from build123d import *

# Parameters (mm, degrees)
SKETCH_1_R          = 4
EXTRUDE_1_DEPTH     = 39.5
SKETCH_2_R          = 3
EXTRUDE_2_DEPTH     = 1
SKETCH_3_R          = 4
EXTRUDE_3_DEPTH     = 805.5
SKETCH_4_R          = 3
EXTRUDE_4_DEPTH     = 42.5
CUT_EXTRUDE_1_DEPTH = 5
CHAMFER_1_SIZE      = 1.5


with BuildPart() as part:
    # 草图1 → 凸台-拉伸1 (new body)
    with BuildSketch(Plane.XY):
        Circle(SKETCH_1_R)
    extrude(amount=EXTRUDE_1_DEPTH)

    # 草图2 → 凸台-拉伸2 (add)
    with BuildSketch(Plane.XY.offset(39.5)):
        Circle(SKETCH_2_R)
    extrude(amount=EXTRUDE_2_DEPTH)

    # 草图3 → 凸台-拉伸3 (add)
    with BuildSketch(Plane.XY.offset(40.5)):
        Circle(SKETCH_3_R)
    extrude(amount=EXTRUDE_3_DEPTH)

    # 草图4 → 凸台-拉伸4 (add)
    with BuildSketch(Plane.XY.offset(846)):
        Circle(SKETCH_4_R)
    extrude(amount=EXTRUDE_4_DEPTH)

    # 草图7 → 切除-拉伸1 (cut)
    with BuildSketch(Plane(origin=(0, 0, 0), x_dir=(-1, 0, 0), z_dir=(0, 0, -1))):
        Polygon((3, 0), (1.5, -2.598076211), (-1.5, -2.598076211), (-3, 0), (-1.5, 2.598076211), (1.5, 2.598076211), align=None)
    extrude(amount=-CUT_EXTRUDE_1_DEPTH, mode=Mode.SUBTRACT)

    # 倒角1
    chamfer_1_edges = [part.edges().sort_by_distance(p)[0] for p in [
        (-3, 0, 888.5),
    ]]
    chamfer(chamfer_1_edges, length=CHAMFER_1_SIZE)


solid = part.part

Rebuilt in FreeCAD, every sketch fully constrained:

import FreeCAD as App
import Part
import Sketcher

V = App.Vector
Q = App.Units.Quantity


def edges_at(feature, points):
    """Names of the edges that pass closest to the given points."""
    edges = feature.Shape.Edges
    near = lambda p: min(range(len(edges)), key=lambda i: edges[i].distToShape(Part.Vertex(*p))[0])
    return sorted({f"Edge{near(p) + 1}" for p in points})

doc = App.newDocument("Part")
params = doc.addObject("Spreadsheet::Sheet", "Params")
for row, (alias, value) in enumerate([
    ("sketch1_diameter", "8 mm"),
    ("pad1_length", "39.5 mm"),
    ("sketch2_diameter", "6 mm"),
    ("pad2_length", "1 mm"),
    ("sketch3_diameter", "8 mm"),
    ("pad3_length", "805.5 mm"),
    ("sketch4_diameter", "6 mm"),
    ("pad4_length", "42.5 mm"),
    ("sketch5_width", "3 mm"),
    ("sketch5_length", "3 mm"),
    ("pocket1_length", "5 mm"),
    ("chamfer_size", "1.5 mm"),
], start=1):
    params.set(f"A{row}", alias)
    params.set(f"B{row}", "=" + value)
    params.setAlias(f"B{row}", alias)

body = doc.addObject("PartDesign::Body", "Body")

sketch1 = doc.addObject("Sketcher::SketchObject", "Sketch")
body.addObject(sketch1)
sketch1.AttachmentSupport = (doc.XY_Plane, [""])
sketch1.MapMode = "FlatFace"
sketch1.addGeometry(Part.Circle(V(0, 0, 0), V(0, 0, 1), 4), False)
sketch1.addConstraint([
    Sketcher.Constraint("Coincident", 0, 3, -1, 1),
    Sketcher.Constraint("Diameter", 0, 8.0),
])
sketch1.setExpression("Constraints[1]", "Params.sketch1_diameter")
pad1 = doc.addObject("PartDesign::Pad", "Pad")
body.addObject(pad1)
pad1.Profile = sketch1
pad1.setExpression("Length", "Params.pad1_length")

sketch2 = doc.addObject("Sketcher::SketchObject", "Sketch001")
body.addObject(sketch2)
sketch2.AttachmentSupport = (doc.XY_Plane, [""])
sketch2.MapMode = "FlatFace"
sketch2.AttachmentOffset = App.Placement(V(0, 0, 39.5), App.Rotation())
sketch2.addGeometry(Part.Circle(V(0, 0, 0), V(0, 0, 1), 3), False)
sketch2.addConstraint([
    Sketcher.Constraint("Coincident", 0, 3, -1, 1),
    Sketcher.Constraint("Diameter", 0, 6.0),
])
sketch2.setExpression("Constraints[1]", "Params.sketch2_diameter")
pad2 = doc.addObject("PartDesign::Pad", "Pad001")
body.addObject(pad2)
pad2.Profile = sketch2
pad2.setExpression("Length", "Params.pad2_length")

sketch3 = doc.addObject("Sketcher::SketchObject", "Sketch002")
body.addObject(sketch3)
sketch3.AttachmentSupport = (doc.XY_Plane, [""])
sketch3.MapMode = "FlatFace"
sketch3.AttachmentOffset = App.Placement(V(0, 0, 40.5), App.Rotation())
sketch3.addGeometry(Part.Circle(V(0, 0, 0), V(0, 0, 1), 4), False)
sketch3.addConstraint([
    Sketcher.Constraint("Coincident", 0, 3, -1, 1),
    Sketcher.Constraint("Diameter", 0, 8.0),
])
sketch3.setExpression("Constraints[1]", "Params.sketch3_diameter")
pad3 = doc.addObject("PartDesign::Pad", "Pad002")
body.addObject(pad3)
pad3.Profile = sketch3
pad3.setExpression("Length", "Params.pad3_length")

sketch4 = doc.addObject("Sketcher::SketchObject", "Sketch003")
body.addObject(sketch4)
sketch4.AttachmentSupport = (doc.XY_Plane, [""])
sketch4.MapMode = "FlatFace"
sketch4.AttachmentOffset = App.Placement(V(0, 0, 846), App.Rotation())
sketch4.addGeometry(Part.Circle(V(0, 0, 0), V(0, 0, 1), 3), False)
sketch4.addConstraint([
    Sketcher.Constraint("Coincident", 0, 3, -1, 1),
    Sketcher.Constraint("Diameter", 0, 6.0),
])
sketch4.setExpression("Constraints[1]", "Params.sketch4_diameter")
pad4 = doc.addObject("PartDesign::Pad", "Pad003")
body.addObject(pad4)
pad4.Profile = sketch4
pad4.setExpression("Length", "Params.pad4_length")

sketch5 = doc.addObject("Sketcher::SketchObject", "Sketch004")
body.addObject(sketch5)
sketch5.AttachmentSupport = (doc.XY_Plane, [""])
sketch5.MapMode = "FlatFace"
sketch5.addGeometry([
    Part.LineSegment(V(-1.5, -2.6, 0), V(-3, 0, 0)),
    Part.LineSegment(V(-3, 0, 0), V(-1.5, 2.6, 0)),
    Part.LineSegment(V(-1.5, 2.6, 0), V(1.5, 2.6, 0)),
    Part.LineSegment(V(1.5, 2.6, 0), V(3, 0, 0)),
    Part.LineSegment(V(3, 0, 0), V(1.5, -2.6, 0)),
    Part.LineSegment(V(1.5, -2.6, 0), V(-1.5, -2.6, 0)),
], False)
sketch5.addConstraint([
    Sketcher.Constraint("Coincident", 0, 2, 1, 1),
    Sketcher.Constraint("Coincident", 1, 2, 2, 1),
    Sketcher.Constraint("Coincident", 2, 2, 3, 1),
    Sketcher.Constraint("Coincident", 3, 2, 4, 1),
    Sketcher.Constraint("Coincident", 4, 2, 5, 1),
    Sketcher.Constraint("Coincident", 5, 2, 0, 1),
    Sketcher.Constraint("Horizontal", 2),
    Sketcher.Constraint("Horizontal", 5),
    Sketcher.Constraint("Symmetric", 0, 2, 3, 2, -1, 1),
    Sketcher.Constraint("Symmetric", 1, 2, 4, 2, -1, 1),
    Sketcher.Constraint("PointOnObject", 0, 2, -1),
    Sketcher.Constraint("Parallel", 0, 3),
    Sketcher.Constraint("Vertical", 2, 2, 4, 2),
    Sketcher.Constraint("DistanceX", 2, 1, 2, 2, 3.0),
    Sketcher.Constraint("Angle", 0, Q("120 deg")),
    Sketcher.Constraint("Distance", 0, 3.0),
])
sketch5.setExpression("Constraints[13]", "Params.sketch5_width")
sketch5.setExpression("Constraints[15]", "Params.sketch5_length")
pocket1 = doc.addObject("PartDesign::Pocket", "Pocket")
body.addObject(pocket1)
pocket1.Profile = sketch5
pocket1.setExpression("Length", "Params.pocket1_length")
pocket1.Reversed = True
doc.recompute()

chamfer = doc.addObject("PartDesign::Chamfer", "Chamfer")
body.addObject(chamfer)
chamfer.Base = (pocket1, edges_at(pocket1, [(-3, 0, 888.5)]))
chamfer.setExpression("Size", "Params.chamfer_size")

doc.recompute()
